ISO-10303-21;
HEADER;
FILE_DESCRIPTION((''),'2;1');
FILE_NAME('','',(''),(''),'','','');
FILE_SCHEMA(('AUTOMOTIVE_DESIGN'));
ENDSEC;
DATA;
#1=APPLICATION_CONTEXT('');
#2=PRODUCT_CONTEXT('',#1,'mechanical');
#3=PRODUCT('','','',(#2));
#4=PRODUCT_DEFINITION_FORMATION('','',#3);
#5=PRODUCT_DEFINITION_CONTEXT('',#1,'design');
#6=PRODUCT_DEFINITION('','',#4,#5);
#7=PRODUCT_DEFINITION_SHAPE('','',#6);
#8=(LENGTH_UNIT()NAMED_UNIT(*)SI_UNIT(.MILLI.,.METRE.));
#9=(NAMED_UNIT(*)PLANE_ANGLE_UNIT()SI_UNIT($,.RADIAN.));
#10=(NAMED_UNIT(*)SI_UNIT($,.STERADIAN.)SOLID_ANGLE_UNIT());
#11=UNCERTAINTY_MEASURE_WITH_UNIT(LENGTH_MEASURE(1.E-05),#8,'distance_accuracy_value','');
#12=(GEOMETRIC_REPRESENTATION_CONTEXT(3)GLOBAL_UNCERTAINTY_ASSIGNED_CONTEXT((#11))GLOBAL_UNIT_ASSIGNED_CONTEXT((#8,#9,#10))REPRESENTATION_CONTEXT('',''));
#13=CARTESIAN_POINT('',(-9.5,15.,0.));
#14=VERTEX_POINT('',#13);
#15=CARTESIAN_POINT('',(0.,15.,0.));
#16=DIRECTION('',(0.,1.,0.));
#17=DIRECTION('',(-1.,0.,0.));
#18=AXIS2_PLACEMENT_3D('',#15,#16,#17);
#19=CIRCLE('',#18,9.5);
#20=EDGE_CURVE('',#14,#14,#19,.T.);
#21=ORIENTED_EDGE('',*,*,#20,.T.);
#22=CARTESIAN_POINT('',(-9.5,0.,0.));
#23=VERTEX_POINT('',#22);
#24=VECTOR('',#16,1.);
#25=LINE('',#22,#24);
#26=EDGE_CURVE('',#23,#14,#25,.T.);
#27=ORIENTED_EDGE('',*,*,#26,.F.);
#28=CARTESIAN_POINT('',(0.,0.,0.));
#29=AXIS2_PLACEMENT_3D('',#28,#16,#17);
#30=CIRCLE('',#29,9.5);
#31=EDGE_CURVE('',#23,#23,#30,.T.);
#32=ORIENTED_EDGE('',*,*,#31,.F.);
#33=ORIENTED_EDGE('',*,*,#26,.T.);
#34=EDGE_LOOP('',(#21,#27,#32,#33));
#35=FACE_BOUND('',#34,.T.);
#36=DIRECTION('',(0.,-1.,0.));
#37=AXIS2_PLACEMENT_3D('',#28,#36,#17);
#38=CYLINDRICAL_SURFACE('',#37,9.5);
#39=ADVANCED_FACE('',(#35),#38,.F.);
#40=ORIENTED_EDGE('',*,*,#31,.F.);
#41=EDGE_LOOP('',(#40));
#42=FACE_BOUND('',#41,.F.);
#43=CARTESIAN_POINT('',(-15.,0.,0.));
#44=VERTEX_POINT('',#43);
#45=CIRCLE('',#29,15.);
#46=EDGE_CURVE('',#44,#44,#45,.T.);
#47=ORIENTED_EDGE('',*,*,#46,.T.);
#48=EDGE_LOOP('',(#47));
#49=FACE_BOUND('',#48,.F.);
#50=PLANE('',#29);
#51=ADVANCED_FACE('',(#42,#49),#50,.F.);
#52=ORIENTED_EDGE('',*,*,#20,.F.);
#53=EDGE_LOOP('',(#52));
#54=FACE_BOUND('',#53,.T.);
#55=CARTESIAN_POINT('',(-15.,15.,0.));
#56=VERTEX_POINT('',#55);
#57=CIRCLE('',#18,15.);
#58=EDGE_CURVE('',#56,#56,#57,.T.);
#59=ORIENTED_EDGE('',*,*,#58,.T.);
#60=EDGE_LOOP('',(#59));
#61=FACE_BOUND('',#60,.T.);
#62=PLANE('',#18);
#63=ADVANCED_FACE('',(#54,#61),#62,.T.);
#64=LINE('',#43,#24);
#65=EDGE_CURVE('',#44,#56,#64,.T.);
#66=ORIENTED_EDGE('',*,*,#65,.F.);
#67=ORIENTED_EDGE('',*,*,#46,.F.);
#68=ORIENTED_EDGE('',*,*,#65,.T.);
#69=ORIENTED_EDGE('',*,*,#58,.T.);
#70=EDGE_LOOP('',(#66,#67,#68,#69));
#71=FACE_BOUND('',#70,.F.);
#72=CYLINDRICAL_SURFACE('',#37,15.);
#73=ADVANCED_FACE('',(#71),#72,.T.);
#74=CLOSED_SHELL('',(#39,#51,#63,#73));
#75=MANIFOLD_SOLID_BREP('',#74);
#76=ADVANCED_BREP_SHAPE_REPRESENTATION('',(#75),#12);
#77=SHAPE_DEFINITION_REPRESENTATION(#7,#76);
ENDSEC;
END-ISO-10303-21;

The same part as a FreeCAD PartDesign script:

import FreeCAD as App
import Part
import Sketcher
Q = App.Units.Quantity

doc = App.newDocument("Part")
body = doc.addObject("PartDesign::Body", "Body")

sketch1 = doc.addObject("Sketcher::SketchObject", "Sketch")
body.addObject(sketch1)
sketch1.AttachmentSupport = (doc.XZ_Plane, [""])
sketch1.MapMode = "FlatFace"
sketch1.addGeometry([
    Part.Circle(App.Vector(0, 0, 0), App.Vector(0, 0, 1), 15),
    Part.Circle(App.Vector(0, 0, 0), App.Vector(0, 0, 1), 10),
], False)
sketch1.addConstraint([
    Sketcher.Constraint("Coincident", 0, 3, -1, 1),
    Sketcher.Constraint("Coincident", 1, 3, -1, 1),
    Sketcher.Constraint("Diameter", 0, Q("30 mm")),
    Sketcher.Constraint("Diameter", 1, Q("19 mm")),
])
pad1 = doc.addObject("PartDesign::Pad", "Pad")
body.addObject(pad1)
pad1.Profile = sketch1
pad1.Length = 15
pad1.Reversed = True

doc.recompute()
